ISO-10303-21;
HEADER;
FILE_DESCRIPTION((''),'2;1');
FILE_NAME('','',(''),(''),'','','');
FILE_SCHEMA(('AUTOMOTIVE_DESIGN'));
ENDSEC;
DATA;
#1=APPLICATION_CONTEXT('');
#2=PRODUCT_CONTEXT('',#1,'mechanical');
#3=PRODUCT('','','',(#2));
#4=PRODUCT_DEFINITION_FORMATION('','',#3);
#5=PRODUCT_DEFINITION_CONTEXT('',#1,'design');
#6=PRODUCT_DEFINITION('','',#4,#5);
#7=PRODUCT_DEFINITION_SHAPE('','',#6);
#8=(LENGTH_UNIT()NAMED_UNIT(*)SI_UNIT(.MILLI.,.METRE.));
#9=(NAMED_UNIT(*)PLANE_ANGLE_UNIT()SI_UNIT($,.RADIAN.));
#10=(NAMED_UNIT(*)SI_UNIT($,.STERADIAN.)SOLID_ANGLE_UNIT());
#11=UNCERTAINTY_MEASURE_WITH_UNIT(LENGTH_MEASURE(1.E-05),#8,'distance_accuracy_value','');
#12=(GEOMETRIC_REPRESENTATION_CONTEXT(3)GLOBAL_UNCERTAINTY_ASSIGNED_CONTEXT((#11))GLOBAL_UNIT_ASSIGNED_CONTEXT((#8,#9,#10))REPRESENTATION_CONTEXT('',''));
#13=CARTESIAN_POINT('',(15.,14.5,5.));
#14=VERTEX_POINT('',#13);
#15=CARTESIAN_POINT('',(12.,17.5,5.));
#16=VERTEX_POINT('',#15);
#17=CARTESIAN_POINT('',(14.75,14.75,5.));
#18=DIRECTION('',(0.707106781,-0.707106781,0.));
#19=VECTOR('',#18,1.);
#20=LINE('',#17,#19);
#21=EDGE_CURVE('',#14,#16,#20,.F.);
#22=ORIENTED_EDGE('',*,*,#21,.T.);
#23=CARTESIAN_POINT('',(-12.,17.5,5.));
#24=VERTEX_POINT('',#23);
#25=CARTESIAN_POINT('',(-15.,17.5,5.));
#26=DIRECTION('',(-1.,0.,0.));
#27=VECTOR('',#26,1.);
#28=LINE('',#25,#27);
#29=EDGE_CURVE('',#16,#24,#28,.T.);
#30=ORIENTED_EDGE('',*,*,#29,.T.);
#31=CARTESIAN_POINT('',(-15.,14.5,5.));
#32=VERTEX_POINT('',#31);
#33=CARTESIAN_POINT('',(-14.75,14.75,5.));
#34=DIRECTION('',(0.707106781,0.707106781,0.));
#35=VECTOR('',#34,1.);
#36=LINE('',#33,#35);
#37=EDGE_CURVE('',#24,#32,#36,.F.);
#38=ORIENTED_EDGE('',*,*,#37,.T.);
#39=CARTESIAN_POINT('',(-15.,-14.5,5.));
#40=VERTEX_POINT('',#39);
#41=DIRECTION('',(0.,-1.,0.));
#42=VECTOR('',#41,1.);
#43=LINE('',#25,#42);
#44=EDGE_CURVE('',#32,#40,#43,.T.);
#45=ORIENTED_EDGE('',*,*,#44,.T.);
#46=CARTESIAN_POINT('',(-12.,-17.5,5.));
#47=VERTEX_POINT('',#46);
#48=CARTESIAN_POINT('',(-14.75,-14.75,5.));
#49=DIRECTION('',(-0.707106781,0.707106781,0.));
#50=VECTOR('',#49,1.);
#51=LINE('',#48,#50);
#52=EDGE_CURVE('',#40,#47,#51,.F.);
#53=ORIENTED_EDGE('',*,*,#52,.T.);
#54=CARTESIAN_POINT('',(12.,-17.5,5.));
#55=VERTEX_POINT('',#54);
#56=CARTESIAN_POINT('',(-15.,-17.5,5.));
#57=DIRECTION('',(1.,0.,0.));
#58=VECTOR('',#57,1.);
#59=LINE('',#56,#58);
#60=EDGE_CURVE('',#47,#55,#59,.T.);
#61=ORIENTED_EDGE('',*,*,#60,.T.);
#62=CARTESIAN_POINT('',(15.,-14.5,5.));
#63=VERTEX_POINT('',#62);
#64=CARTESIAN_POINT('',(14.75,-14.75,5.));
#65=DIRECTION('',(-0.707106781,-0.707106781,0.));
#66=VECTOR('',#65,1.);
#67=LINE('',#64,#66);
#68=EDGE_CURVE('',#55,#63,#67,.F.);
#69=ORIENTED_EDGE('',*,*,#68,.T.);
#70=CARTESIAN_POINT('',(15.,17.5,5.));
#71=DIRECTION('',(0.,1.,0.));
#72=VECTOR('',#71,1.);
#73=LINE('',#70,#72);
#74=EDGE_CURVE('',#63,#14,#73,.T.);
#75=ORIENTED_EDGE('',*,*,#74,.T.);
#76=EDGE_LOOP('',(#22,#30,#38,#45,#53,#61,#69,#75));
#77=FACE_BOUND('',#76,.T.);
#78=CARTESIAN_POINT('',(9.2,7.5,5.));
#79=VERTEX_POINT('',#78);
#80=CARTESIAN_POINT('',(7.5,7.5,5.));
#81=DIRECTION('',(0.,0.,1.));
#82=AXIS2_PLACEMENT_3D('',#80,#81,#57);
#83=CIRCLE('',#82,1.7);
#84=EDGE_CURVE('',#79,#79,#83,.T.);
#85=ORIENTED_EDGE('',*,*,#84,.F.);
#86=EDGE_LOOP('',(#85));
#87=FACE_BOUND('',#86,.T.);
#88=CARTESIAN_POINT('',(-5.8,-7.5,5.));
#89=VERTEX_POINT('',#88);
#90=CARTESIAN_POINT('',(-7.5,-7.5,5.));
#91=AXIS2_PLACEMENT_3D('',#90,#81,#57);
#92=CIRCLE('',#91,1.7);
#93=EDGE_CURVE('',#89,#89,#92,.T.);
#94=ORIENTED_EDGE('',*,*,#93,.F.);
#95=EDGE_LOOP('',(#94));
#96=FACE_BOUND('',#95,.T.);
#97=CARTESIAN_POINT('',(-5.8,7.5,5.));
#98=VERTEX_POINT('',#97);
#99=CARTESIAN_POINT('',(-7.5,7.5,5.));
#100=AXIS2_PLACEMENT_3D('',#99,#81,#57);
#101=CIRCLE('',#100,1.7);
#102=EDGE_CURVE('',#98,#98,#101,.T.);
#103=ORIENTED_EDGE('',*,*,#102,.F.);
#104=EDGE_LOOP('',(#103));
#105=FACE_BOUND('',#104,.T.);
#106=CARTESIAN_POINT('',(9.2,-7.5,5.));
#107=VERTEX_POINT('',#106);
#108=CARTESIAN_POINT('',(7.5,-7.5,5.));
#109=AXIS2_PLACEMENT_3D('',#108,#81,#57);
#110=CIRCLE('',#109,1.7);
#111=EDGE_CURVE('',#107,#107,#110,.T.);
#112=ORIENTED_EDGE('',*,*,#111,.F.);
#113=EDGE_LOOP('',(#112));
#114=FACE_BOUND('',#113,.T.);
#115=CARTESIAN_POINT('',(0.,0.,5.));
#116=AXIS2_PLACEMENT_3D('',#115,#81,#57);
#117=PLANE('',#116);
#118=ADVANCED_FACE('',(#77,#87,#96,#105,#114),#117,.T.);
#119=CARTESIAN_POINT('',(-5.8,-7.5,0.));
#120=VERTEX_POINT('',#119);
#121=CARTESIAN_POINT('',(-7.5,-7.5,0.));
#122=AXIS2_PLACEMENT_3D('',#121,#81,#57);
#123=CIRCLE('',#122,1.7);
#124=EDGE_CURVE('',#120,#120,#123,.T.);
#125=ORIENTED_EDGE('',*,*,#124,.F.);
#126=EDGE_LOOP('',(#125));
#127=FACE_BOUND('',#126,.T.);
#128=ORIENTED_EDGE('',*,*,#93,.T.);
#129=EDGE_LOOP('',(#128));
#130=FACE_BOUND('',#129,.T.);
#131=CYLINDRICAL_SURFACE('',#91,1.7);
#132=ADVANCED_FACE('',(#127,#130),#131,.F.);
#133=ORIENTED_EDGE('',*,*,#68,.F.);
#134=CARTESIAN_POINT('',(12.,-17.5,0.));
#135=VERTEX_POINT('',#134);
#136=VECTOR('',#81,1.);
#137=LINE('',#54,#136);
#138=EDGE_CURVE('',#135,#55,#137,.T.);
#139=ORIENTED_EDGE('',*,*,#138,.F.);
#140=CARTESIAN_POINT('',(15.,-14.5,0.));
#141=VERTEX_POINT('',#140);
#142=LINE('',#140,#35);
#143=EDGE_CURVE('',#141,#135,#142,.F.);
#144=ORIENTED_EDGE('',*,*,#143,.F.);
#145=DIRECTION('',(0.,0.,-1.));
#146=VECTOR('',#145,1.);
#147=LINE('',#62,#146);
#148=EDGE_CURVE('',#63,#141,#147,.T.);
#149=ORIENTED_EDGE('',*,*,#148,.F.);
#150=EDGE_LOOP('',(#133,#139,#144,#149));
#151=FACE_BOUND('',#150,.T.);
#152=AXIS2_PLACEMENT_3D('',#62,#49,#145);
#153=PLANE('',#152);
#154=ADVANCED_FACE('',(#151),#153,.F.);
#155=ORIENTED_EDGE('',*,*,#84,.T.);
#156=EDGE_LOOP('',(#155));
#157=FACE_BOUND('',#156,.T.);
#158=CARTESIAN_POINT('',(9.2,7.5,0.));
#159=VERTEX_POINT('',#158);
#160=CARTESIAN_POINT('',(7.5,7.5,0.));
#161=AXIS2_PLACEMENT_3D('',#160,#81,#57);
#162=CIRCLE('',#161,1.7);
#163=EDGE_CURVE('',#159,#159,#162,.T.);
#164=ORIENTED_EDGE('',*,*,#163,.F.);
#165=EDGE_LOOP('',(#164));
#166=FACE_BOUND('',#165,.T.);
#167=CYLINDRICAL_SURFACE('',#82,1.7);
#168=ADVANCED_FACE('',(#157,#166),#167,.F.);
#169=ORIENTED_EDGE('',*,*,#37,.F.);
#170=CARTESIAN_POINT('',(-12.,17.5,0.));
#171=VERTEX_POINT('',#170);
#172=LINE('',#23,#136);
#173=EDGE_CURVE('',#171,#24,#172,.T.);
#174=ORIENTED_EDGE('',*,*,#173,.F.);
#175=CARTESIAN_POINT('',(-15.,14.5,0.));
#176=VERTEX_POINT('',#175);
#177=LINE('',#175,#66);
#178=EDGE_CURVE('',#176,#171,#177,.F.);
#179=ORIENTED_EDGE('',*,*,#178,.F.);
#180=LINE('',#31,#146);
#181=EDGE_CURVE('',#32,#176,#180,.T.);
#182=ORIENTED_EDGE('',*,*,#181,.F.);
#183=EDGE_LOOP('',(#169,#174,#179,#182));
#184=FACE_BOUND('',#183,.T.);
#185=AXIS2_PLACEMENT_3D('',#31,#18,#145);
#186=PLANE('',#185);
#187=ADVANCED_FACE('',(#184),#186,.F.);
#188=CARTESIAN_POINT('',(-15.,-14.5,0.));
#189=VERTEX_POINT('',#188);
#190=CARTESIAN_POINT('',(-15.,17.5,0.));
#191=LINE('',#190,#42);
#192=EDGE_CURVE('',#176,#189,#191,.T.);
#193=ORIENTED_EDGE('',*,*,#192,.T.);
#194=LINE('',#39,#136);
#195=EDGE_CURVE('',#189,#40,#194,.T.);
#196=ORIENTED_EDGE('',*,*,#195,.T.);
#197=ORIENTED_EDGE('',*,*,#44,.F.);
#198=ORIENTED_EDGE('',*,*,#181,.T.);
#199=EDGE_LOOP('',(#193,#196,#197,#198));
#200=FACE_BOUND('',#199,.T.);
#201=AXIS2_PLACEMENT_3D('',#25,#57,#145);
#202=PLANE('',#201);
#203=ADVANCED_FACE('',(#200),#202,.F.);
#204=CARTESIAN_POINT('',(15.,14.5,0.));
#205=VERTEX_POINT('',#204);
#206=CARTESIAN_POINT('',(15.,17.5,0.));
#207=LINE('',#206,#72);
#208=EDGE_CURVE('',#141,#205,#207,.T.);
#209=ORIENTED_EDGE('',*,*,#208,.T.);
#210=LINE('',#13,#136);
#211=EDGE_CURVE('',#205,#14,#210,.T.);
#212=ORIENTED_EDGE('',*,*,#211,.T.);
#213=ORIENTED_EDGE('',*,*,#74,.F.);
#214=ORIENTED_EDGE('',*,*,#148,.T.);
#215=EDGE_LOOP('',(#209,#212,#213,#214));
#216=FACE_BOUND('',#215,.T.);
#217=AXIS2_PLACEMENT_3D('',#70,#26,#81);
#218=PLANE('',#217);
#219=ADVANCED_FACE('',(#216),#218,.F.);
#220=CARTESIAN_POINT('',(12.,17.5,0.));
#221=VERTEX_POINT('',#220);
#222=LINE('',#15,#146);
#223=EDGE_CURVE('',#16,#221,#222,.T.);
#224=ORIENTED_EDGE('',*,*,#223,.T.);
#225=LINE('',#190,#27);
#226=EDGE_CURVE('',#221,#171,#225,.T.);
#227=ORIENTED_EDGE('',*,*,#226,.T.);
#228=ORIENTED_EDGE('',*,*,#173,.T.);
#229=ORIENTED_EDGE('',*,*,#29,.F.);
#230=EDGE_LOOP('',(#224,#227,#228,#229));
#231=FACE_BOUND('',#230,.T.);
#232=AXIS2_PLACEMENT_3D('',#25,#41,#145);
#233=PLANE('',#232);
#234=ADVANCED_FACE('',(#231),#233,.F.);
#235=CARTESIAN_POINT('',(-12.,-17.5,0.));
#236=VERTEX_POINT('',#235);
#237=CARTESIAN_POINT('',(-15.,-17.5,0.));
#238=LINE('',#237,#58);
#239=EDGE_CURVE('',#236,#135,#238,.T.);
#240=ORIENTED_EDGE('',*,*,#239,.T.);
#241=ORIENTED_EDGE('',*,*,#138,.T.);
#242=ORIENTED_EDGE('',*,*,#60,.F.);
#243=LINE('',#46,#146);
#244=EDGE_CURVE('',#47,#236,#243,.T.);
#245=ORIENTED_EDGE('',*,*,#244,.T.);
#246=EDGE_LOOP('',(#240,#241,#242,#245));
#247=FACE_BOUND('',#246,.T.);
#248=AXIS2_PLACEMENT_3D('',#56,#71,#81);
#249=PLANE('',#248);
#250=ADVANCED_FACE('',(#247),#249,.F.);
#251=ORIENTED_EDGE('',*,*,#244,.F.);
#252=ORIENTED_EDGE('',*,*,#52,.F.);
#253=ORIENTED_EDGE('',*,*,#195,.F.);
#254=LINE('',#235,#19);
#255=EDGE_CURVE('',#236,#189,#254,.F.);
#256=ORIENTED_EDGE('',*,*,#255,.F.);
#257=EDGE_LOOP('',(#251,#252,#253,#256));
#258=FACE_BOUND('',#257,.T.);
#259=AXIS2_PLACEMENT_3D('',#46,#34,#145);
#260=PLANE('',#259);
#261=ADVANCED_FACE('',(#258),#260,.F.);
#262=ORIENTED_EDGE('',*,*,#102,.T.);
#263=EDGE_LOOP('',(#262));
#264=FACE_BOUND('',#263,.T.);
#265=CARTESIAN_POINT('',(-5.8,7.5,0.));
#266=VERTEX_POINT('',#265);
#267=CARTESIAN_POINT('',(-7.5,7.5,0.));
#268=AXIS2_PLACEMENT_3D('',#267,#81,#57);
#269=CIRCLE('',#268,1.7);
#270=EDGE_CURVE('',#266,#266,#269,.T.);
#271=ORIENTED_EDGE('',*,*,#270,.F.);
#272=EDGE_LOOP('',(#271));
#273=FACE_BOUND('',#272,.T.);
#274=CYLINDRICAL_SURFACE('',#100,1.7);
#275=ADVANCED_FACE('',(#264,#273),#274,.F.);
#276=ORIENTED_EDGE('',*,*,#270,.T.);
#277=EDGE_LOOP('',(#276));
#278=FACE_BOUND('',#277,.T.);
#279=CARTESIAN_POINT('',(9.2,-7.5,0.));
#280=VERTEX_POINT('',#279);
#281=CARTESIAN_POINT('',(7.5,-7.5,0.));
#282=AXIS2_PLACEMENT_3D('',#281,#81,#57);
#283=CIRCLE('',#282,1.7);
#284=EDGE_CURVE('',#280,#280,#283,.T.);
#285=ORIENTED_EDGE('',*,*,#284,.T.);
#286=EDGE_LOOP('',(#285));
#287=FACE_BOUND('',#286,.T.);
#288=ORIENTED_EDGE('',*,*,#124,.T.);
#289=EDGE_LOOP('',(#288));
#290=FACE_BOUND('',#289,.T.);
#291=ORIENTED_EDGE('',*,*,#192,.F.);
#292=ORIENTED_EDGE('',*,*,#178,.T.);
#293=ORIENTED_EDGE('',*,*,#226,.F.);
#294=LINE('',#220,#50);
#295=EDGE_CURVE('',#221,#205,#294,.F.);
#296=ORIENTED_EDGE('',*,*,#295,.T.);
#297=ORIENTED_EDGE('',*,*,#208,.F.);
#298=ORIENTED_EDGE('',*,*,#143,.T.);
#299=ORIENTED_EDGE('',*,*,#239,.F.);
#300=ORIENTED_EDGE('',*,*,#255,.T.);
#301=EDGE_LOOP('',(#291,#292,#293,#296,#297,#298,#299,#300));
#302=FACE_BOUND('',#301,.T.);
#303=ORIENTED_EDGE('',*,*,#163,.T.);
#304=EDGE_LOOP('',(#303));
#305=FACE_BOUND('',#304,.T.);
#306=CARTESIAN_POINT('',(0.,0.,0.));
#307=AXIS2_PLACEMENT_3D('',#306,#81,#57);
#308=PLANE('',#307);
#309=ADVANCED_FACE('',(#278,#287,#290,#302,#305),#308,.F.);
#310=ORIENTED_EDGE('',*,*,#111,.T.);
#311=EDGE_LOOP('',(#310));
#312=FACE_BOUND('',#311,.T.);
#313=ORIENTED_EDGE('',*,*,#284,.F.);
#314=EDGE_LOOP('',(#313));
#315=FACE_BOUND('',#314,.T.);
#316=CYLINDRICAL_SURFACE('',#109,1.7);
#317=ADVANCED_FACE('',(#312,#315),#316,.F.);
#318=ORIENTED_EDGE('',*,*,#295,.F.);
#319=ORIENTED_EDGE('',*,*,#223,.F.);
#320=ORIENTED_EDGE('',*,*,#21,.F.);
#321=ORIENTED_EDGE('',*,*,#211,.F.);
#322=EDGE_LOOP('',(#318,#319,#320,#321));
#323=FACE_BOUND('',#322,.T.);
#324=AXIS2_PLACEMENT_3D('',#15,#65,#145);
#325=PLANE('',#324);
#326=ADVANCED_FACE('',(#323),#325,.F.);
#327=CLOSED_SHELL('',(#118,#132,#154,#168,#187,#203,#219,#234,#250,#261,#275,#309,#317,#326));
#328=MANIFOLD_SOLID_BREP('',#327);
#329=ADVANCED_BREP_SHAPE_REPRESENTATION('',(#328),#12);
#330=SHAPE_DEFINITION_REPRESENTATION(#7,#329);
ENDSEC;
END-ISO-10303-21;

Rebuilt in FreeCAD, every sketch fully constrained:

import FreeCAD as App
import Part
import Sketcher
from FreeCAD import Vector


def edges_at(feature, points):
    """Names of the edges that pass closest to the given points."""
    edges = feature.Shape.Edges
    near = lambda p: min(range(len(edges)), key=lambda i: edges[i].distToShape(Part.Vertex(*p))[0])
    return sorted({f"Edge{near(p) + 1}" for p in points})

doc = App.newDocument("Part")
body = doc.addObject("PartDesign::Body", "Body")

sketch1 = body.newObject("Sketcher::SketchObject", "Sketch")
sketch1.AttachmentSupport = (doc.getObject("XY_Plane"), [""])
sketch1.MapMode = "FlatFace"
sketch1.addGeometry([
    Part.LineSegment(Vector(-15, 18, 0), Vector(-15, -18, 0)),
    Part.LineSegment(Vector(-15, -18, 0), Vector(15, -18, 0)),
    Part.LineSegment(Vector(15, -18, 0), Vector(15, 18, 0)),
    Part.LineSegment(Vector(15, 18, 0), Vector(-15, 18, 0)),
], False)
sketch1.addConstraint([
    Sketcher.Constraint("Coincident", 0, 2, 1, 1),
    Sketcher.Constraint("Coincident", 1, 2, 2, 1),
    Sketcher.Constraint("Coincident", 2, 2, 3, 1),
    Sketcher.Constraint("Coincident", 3, 2, 0, 1),
    Sketcher.Constraint("Vertical", 0),
    Sketcher.Constraint("Horizontal", 1),
    Sketcher.Constraint("Vertical", 2),
    Sketcher.Constraint("Horizontal", 3),
    Sketcher.Constraint("Symmetric", 0, 2, 2, 2, -1, 1),
    Sketcher.Constraint("DistanceX", 1, 1, 1, 2, 30.0),
    Sketcher.Constraint("DistanceY", 0, 2, 0, 1, 35.0),
])
pad1 = body.newObject("PartDesign::Pad", "Pad")
pad1.Profile = sketch1
pad1.Length = 5

sketch2 = body.newObject("Sketcher::SketchObject", "Sketch001")
sketch2.AttachmentSupport = (doc.getObject("XY_Plane"), [""])
sketch2.MapMode = "FlatFace"
sketch2.AttachmentOffset = App.Placement(Vector(0, 0, 5), App.Rotation())
sketch2.addGeometry([
    Part.Circle(Vector(7.5, -7.5, 0), Vector(0, 0, 1), 1.7),
    Part.Circle(Vector(-7.5, 7.5, 0), Vector(0, 0, 1), 1.7),
    Part.Circle(Vector(-7.5, -7.5, 0), Vector(0, 0, 1), 1.7),
    Part.Circle(Vector(7.5, 7.5, 0), Vector(0, 0, 1), 1.7),
], False)
sketch2.addConstraint([
    Sketcher.Constraint("Equal", 0, 1),
    Sketcher.Constraint("Equal", 1, 2),
    Sketcher.Constraint("Equal", 2, 3),
    Sketcher.Constraint("Symmetric", 0, 3, 1, 3, -1, 1),
    Sketcher.Constraint("Symmetric", 2, 3, 3, 3, -1, 1),
    Sketcher.Constraint("Symmetric", 0, 3, 2, 3, -2),
    Sketcher.Constraint("Diameter", 0, 3.4),
    Sketcher.Constraint("DistanceX", 1, 3, 0, 3, 15.0),
    Sketcher.Constraint("DistanceY", 0, 3, 1, 3, 15.0),
])
doc.recompute()
hole = body.newObject("PartDesign::Hole", "Hole")
hole.Profile = sketch2
hole.ThreadType = "None"
hole.Diameter = 3.4
hole.DepthType = "ThroughAll"
doc.recompute()

chamfer = body.newObject("PartDesign::Chamfer", "Chamfer")
chamfer.Base = (hole, edges_at(hole, [
    (15, -17.5, 2.5),
    (-15, -17.5, 2.5),
    (-15, 17.5, 2.5),
    (15, 17.5, 2.5),
]))
chamfer.Size = 3

doc.recompute()
